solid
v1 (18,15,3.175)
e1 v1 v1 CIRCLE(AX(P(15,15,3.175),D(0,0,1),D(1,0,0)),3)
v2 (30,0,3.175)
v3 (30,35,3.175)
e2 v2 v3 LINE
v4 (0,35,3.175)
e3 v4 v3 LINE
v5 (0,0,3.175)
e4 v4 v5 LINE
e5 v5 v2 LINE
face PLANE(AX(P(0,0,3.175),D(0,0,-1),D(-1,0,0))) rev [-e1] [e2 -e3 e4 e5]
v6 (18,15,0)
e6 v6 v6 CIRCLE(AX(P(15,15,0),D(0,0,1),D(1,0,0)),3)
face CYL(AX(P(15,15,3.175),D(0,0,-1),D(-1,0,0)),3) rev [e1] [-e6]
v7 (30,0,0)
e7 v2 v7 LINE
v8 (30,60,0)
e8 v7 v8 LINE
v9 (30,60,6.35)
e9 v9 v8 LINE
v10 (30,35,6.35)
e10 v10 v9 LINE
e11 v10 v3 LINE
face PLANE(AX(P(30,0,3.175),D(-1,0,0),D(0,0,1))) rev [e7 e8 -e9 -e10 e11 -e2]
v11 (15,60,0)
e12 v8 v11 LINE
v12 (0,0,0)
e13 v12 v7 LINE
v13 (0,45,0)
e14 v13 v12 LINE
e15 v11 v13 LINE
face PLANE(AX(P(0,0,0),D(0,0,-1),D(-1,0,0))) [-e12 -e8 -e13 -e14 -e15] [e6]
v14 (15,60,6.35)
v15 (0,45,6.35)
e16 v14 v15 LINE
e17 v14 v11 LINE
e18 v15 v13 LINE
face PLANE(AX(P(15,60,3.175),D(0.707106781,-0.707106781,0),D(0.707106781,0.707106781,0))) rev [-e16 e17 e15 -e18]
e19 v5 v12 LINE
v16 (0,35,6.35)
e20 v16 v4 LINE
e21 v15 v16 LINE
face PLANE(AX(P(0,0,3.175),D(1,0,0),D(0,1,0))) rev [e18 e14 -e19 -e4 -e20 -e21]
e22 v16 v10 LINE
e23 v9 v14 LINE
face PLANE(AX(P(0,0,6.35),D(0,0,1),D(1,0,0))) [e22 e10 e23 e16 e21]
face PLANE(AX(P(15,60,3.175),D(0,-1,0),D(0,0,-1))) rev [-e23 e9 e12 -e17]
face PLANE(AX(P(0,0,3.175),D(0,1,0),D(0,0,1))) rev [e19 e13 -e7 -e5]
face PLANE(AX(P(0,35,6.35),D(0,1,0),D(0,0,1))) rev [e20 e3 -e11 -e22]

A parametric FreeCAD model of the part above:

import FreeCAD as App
import Part
import Sketcher

V = App.Vector
Q = App.Units.Quantity


def add_polygon(sketch, points):
    """Adds a closed chain of lines whose ends are joined by coincident constraints."""
    first, n = sketch.GeometryCount, len(points)
    for a, b in zip(points, points[1:] + points[:1]):
        sketch.addGeometry(Part.LineSegment(App.Vector(*a, 0), App.Vector(*b, 0)), False)
    for i in range(n):
        sketch.addConstraint(Sketcher.Constraint("Coincident", first + i, 2, first + (i + 1) % n, 1))

doc = App.newDocument("Part")
body = doc.addObject("PartDesign::Body", "Body")

# Sketch on XY plane
sketch1 = body.newObject("Sketcher::SketchObject", "Sketch")
sketch1.AttachmentSupport = (doc.getObject("XY_Plane"), [""])
sketch1.MapMode = "FlatFace"
add_polygon(sketch1, [(15, 60), (0, 45), (0, 0), (30, 0), (30, 60)])  # lines 0-4
sketch1.addGeometry(Part.Circle(V(15, 15, 0), V(0, 0, 1), 3), False)  # 5
sketch1.addConstraint(Sketcher.Constraint("Vertical", 1))
sketch1.addConstraint(Sketcher.Constraint("Horizontal", 2))
sketch1.addConstraint(Sketcher.Constraint("Vertical", 3))
sketch1.addConstraint(Sketcher.Constraint("Horizontal", 4))
sketch1.addConstraint(Sketcher.Constraint("Coincident", 1, 2, -1, 1))
sketch1.addConstraint(Sketcher.Constraint("Vertical", 5, 3, 4, 2))
sketch1.addConstraint(Sketcher.Constraint("Diameter", 5, Q("6 mm")))
sketch1.addConstraint(Sketcher.Constraint("DistanceX", 2, 1, 2, 2, Q("30 mm")))
sketch1.addConstraint(Sketcher.Constraint("DistanceX", 4, 2, 4, 1, Q("15 mm")))
sketch1.addConstraint(Sketcher.Constraint("DistanceY", 1, 2, 1, 1, Q("45 mm")))
sketch1.addConstraint(Sketcher.Constraint("DistanceY", 3, 1, 3, 2, Q("60 mm")))
sketch1.addConstraint(Sketcher.Constraint("DistanceY", -1, 1, 5, 3, Q("15 mm")))
pad1 = body.newObject("PartDesign::Pad", "Pad")
pad1.Profile = sketch1
pad1.Length = 3.175

# Sketch on XY plane
sketch2 = body.newObject("Sketcher::SketchObject", "Sketch001")
sketch2.AttachmentSupport = (doc.getObject("XY_Plane"), [""])
sketch2.MapMode = "FlatFace"
sketch2.AttachmentOffset = App.Placement(V(0, 0, 3.175), App.Rotation())
add_polygon(sketch2, [(15, 60), (0, 45), (0, 35), (30, 35), (30, 60)])  # lines 0-4
sketch2.addConstraint(Sketcher.Constraint("Vertical", 1))
sketch2.addConstraint(Sketcher.Constraint("Horizontal", 2))
sketch2.addConstraint(Sketcher.Constraint("Vertical", 3))
sketch2.addConstraint(Sketcher.Constraint("Horizontal", 4))
sketch2.addConstraint(Sketcher.Constraint("PointOnObject", 0, 2, -2))
sketch2.addConstraint(Sketcher.Constraint("DistanceX", 2, 1, 2, 2, Q("30 mm")))
sketch2.addConstraint(Sketcher.Constraint("DistanceX", 4, 2, 4, 1, Q("15 mm")))
sketch2.addConstraint(Sketcher.Constraint("DistanceY", 1, 2, 1, 1, Q("10 mm")))
sketch2.addConstraint(Sketcher.Constraint("DistanceY", 3, 1, 3, 2, Q("25 mm")))
sketch2.addConstraint(Sketcher.Constraint("DistanceY", -1, 1, 0, 2, Q("45 mm")))
pad2 = body.newObject("PartDesign::Pad", "Pad001")
pad2.Profile = sketch2
pad2.Length = 3.175

doc.recompute()
